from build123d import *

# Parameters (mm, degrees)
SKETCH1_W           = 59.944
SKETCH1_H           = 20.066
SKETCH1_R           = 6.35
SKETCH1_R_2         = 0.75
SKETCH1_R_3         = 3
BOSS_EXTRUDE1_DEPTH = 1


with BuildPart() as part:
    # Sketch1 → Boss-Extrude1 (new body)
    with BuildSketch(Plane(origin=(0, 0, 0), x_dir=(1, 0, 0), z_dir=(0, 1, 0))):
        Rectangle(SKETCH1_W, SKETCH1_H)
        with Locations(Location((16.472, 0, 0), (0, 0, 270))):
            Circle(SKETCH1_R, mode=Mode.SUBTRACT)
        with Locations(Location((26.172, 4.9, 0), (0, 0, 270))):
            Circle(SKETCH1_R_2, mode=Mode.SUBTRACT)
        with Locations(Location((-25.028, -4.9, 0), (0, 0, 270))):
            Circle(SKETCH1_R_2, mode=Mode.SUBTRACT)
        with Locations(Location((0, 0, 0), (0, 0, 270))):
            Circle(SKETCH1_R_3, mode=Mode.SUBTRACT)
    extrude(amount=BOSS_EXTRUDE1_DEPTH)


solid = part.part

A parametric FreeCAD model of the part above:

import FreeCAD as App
import Part
import Sketcher
Q = App.Units.Quantity


def add_polygon(sketch, points):
    """Adds a closed chain of lines whose ends are joined by coincident constraints."""
    first, n = sketch.GeometryCount, len(points)
    for a, b in zip(points, points[1:] + points[:1]):
        sketch.addGeometry(Part.LineSegment(App.Vector(*a, 0), App.Vector(*b, 0)), False)
    for i in range(n):
        sketch.addConstraint(Sketcher.Constraint("Coincident", first + i, 2, first + (i + 1) % n, 1))

doc = App.newDocument("Part")
body = doc.addObject("PartDesign::Body", "Body")

sketch1 = doc.addObject("Sketcher::SketchObject", "Sketch")
body.addObject(sketch1)
sketch1.AttachmentSupport = (doc.XZ_Plane, [""])
sketch1.MapMode = "FlatFace"
add_polygon(sketch1, [(-30, -10), (-30, 10), (30, 10), (30, -10)])
sketch1.addGeometry(Part.Circle(App.Vector(-25, 4.9, 0), App.Vector(0, 0, 1), 0.8), False)
sketch1.addGeometry(Part.Circle(App.Vector(0, 0, 0), App.Vector(0, 0, 1), 3), False)
sketch1.addGeometry(Part.Circle(App.Vector(16.5, 0, 0), App.Vector(0, 0, 1), 6.3), False)
sketch1.addGeometry(Part.Circle(App.Vector(26.2, -4.9, 0), App.Vector(0, 0, 1), 0.8), False)
sketch1.addConstraint([
    Sketcher.Constraint("Vertical", 0),
    Sketcher.Constraint("Horizontal", 1),
    Sketcher.Constraint("Vertical", 2),
    Sketcher.Constraint("Horizontal", 3),
    Sketcher.Constraint("Coincident", 5, 3, -1, 1),
    Sketcher.Constraint("Equal", 4, 7),
    Sketcher.Constraint("Symmetric", 0, 2, 2, 2, -1, 1),
    Sketcher.Constraint("PointOnObject", 6, 3, -1),
    Sketcher.Constraint("Diameter", 5, Q("6 mm")),
    Sketcher.Constraint("Diameter", 4, Q("1.5 mm")),
    Sketcher.Constraint("Diameter", 6, Q("12.7 mm")),
    Sketcher.Constraint("DistanceX", 4, 3, 1, 2, Q("55 mm")),
    Sketcher.Constraint("DistanceY", -1, 1, 4, 3, Q("4.9 mm")),
    Sketcher.Constraint("DistanceY", 7, 3, -1, 1, Q("4.9 mm")),
    Sketcher.Constraint("DistanceX", 4, 3, 6, 3, Q("41.5 mm")),
    Sketcher.Constraint("DistanceX", 6, 3, 7, 3, Q("9.7 mm")),
    Sketcher.Constraint("DistanceX", 1, 1, 1, 2, Q("59.944 mm")),
    Sketcher.Constraint("DistanceY", 0, 1, 0, 2, Q("20.066 mm")),
])
pad1 = doc.addObject("PartDesign::Pad", "Pad")
body.addObject(pad1)
pad1.Profile = sketch1
pad1.Length = 1
pad1.Reversed = True

doc.recompute()
